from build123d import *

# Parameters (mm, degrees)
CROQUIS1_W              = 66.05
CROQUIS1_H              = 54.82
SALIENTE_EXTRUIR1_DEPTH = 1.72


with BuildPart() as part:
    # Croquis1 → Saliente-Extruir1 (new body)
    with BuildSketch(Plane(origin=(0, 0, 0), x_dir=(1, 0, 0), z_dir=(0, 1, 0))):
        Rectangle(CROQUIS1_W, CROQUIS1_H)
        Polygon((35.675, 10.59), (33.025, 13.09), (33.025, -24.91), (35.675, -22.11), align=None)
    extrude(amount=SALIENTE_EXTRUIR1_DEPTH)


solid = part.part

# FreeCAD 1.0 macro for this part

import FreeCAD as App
import Part
import Sketcher


def add_polygon(sketch, points):
    """Adds a closed chain of lines whose ends are joined by coincident constraints."""
    first, n = sketch.GeometryCount, len(points)
    for a, b in zip(points, points[1:] + points[:1]):
        sketch.addGeometry(Part.LineSegment(App.Vector(*a, 0), App.Vector(*b, 0)), False)
    for i in range(n):
        sketch.addConstraint(Sketcher.Constraint("Coincident", first + i, 2, first + (i + 1) % n, 1))

doc = App.newDocument("Part")
body = doc.addObject("PartDesign::Body", "Body")

sketch1 = body.newObject("Sketcher::SketchObject", "Sketch")
sketch1.AttachmentSupport = (doc.getObject("XZ_Plane"), [""])
sketch1.MapMode = "FlatFace"
add_polygon(sketch1, [(-33, -27.4), (-33, 27.4), (33, 27.4), (33, 24.9), (35.7, 22.1), (35.7, -10.6), (33, -13.1), (33, -27.4)])
sketch1.addConstraint([
    Sketcher.Constraint("Vertical", 0),
    Sketcher.Constraint("Horizontal", 1),
    Sketcher.Constraint("Vertical", 2),
    Sketcher.Constraint("Vertical", 4),
    Sketcher.Constraint("Vertical", 6),
    Sketcher.Constraint("Horizontal", 7),
    Sketcher.Constraint("Symmetric", 0, 2, 6, 2, -1, 1),
    Sketcher.Constraint("Vertical", 2, 2, 5, 2),
    Sketcher.Constraint("DistanceY", 2, 2, 2, 1, 2.5),
    Sketcher.Constraint("DistanceY", 4, 2, 4, 1, 32.7),
    Sketcher.Constraint("DistanceY", 4, 2, 1, 2, 38.0),
    Sketcher.Constraint("DistanceY", 5, 2, 2, 2, 38.0),
    Sketcher.Constraint("DistanceX", 1, 1, 1, 2, 66.05),
    Sketcher.Constraint("DistanceY", 0, 1, 0, 2, 54.82),
    Sketcher.Constraint("DistanceX", 0, 2, 3, 2, 68.7),
])
pad1 = body.newObject("PartDesign::Pad", "Pad")
pad1.Profile = sketch1
pad1.Length = 1.72
pad1.Reversed = True

doc.recompute()
